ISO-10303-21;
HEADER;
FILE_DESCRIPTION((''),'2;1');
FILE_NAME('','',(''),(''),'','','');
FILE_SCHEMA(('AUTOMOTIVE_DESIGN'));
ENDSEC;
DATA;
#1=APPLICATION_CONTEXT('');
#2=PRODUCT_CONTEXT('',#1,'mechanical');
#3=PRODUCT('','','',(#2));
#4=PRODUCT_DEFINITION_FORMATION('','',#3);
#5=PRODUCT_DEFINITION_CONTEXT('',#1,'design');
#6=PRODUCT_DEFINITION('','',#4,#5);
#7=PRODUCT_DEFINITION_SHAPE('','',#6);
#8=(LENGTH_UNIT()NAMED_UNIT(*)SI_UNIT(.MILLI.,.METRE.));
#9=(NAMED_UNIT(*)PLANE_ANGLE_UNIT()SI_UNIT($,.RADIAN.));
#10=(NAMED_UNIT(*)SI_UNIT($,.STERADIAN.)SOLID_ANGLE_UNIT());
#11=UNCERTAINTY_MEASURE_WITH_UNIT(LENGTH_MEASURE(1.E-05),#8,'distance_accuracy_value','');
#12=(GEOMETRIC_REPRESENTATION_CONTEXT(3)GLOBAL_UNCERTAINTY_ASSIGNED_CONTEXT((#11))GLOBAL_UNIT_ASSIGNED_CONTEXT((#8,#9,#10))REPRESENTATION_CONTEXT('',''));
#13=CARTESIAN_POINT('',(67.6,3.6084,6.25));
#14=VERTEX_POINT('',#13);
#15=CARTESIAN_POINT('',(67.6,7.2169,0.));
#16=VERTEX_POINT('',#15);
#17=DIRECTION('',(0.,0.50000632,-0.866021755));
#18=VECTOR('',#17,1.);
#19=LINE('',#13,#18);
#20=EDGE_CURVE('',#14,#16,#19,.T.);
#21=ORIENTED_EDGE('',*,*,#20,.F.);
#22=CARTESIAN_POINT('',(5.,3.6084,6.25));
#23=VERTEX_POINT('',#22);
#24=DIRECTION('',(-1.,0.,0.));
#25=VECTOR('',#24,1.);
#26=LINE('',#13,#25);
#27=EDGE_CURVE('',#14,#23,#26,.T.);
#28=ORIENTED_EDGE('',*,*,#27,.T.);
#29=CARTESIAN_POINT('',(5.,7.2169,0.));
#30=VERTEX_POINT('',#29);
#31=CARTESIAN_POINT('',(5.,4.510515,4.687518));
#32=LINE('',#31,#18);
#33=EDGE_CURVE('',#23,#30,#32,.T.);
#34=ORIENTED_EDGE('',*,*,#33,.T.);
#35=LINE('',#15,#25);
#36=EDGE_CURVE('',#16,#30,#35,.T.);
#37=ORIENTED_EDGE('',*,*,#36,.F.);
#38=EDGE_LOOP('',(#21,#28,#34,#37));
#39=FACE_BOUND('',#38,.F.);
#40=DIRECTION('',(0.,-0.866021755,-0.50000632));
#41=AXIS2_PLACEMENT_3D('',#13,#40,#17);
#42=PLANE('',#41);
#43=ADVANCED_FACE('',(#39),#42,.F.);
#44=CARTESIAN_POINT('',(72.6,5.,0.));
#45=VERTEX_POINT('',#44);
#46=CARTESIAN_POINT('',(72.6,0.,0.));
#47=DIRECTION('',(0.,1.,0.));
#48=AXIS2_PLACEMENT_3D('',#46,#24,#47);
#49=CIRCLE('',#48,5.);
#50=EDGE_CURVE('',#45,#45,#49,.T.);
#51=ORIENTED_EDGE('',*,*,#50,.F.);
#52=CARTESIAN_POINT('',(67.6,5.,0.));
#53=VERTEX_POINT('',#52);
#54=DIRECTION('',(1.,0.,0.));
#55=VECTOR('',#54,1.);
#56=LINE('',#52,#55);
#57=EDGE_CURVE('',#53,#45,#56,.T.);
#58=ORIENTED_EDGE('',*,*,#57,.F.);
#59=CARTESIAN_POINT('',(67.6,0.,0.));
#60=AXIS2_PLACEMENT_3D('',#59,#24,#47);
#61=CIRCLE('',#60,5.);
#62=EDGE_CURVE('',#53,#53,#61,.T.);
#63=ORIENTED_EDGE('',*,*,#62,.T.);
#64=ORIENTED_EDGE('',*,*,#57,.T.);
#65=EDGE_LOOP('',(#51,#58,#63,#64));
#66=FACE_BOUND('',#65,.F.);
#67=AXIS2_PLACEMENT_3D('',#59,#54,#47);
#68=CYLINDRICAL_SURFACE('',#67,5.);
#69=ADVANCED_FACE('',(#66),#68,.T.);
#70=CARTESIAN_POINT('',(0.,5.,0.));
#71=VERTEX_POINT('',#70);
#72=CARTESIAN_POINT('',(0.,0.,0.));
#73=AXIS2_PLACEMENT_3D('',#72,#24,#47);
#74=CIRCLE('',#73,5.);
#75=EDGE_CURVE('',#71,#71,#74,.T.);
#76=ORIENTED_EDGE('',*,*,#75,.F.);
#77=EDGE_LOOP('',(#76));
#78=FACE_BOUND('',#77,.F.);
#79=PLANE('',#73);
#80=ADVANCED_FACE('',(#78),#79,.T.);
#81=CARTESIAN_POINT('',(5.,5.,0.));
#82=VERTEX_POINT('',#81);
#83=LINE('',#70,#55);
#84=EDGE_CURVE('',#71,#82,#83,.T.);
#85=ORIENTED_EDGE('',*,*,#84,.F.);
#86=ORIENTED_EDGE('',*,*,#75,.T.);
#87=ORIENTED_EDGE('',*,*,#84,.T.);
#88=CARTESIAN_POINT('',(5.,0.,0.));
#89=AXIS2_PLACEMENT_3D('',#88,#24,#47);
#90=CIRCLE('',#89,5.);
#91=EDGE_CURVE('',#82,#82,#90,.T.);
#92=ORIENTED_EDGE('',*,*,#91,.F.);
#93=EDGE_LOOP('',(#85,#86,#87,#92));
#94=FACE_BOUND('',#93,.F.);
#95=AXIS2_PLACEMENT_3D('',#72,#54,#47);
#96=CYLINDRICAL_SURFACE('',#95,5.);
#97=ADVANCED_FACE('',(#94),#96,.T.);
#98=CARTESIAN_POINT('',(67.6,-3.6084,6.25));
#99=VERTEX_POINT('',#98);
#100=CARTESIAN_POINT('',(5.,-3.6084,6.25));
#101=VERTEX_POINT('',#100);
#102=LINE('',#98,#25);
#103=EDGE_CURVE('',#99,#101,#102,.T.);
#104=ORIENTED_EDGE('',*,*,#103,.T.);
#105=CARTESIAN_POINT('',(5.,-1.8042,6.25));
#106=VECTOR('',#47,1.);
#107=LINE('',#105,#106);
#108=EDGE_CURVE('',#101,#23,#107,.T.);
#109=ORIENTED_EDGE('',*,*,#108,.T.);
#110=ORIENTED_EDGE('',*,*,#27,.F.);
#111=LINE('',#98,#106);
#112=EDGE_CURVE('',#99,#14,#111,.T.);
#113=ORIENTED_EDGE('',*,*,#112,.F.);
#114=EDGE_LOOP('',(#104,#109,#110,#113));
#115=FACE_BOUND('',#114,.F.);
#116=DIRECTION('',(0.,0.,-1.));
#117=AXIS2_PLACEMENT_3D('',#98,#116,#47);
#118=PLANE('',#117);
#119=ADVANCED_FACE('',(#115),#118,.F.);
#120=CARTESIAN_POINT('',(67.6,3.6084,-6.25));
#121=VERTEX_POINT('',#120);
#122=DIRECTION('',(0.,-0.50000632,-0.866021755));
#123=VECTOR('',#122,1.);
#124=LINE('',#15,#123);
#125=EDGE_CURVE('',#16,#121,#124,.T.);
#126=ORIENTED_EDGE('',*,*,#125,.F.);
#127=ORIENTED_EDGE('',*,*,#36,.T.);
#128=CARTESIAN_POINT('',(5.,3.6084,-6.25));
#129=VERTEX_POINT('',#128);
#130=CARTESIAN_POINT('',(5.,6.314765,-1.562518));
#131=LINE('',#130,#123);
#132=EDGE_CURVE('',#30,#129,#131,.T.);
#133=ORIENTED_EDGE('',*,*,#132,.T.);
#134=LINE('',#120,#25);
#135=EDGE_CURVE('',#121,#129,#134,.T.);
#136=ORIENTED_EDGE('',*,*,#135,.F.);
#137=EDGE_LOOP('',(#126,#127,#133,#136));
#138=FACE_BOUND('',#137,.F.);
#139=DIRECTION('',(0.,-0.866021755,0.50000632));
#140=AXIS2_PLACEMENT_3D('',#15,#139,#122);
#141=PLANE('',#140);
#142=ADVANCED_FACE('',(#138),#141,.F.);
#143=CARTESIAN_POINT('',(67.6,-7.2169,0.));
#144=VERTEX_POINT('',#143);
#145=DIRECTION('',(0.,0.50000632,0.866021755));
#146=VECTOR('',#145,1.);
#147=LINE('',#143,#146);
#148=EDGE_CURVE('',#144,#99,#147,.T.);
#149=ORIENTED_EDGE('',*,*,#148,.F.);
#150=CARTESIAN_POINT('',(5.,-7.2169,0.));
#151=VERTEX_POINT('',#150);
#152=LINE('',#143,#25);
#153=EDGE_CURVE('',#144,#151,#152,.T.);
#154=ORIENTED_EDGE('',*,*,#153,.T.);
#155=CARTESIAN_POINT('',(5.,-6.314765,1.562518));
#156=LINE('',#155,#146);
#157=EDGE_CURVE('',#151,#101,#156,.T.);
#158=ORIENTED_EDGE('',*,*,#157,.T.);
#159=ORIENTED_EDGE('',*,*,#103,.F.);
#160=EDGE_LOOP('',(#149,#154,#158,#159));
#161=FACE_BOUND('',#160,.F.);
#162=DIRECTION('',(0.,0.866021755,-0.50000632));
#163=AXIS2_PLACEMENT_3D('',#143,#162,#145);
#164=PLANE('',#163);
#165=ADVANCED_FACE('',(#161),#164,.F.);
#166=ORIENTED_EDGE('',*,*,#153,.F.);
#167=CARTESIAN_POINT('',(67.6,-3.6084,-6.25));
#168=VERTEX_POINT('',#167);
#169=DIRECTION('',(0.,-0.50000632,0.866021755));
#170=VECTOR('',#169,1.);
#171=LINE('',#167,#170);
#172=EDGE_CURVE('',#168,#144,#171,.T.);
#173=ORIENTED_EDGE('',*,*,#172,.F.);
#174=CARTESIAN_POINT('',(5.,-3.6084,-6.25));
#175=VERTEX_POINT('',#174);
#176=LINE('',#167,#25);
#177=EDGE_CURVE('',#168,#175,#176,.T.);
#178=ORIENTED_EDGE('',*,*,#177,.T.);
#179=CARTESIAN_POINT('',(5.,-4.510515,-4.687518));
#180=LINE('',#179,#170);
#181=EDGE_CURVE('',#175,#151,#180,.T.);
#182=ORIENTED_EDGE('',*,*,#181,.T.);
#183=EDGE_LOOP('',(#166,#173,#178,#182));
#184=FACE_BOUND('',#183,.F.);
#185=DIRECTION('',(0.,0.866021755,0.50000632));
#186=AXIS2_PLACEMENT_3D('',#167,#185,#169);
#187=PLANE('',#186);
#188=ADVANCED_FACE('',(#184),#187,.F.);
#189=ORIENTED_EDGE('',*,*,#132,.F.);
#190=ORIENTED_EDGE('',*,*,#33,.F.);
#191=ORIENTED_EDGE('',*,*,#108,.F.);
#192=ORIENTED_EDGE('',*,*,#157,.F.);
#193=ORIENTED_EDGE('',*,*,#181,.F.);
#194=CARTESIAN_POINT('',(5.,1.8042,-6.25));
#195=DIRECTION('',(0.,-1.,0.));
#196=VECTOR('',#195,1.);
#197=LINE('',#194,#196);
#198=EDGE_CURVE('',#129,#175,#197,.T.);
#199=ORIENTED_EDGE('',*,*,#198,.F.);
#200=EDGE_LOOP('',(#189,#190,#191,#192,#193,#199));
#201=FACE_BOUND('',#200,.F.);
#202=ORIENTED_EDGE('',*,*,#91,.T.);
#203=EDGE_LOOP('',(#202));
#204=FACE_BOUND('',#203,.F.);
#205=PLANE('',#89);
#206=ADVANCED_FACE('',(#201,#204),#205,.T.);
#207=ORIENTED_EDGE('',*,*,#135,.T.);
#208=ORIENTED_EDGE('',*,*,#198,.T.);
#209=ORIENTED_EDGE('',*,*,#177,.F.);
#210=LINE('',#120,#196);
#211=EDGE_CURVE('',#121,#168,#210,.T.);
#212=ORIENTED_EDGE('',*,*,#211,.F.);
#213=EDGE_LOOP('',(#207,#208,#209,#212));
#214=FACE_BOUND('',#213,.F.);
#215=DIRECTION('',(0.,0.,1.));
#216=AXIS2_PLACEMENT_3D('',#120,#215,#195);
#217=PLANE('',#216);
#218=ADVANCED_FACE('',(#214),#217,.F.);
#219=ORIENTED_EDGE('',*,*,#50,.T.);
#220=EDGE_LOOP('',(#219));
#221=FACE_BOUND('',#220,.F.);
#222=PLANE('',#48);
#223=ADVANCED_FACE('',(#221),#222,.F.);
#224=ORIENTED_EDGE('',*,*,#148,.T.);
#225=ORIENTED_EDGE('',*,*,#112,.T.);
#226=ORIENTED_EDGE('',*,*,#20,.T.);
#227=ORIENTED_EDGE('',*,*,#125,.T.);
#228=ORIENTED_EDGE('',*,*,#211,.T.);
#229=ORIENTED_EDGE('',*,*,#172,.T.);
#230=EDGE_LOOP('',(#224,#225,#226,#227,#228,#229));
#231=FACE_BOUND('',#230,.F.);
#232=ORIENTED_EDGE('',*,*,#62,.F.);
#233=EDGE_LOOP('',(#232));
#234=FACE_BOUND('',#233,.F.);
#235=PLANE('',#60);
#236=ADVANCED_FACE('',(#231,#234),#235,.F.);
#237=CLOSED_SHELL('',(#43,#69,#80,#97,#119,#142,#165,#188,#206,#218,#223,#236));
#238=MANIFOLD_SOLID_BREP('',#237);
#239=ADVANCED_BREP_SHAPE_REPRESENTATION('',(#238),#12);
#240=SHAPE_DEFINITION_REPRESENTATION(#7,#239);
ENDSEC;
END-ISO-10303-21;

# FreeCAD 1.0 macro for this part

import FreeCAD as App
import Part
import Sketcher
Q = App.Units.Quantity


def add_polygon(sketch, points):
    """Adds a closed chain of lines whose ends are joined by coincident constraints."""
    first, n = sketch.GeometryCount, len(points)
    for a, b in zip(points, points[1:] + points[:1]):
        sketch.addGeometry(Part.LineSegment(App.Vector(*a, 0), App.Vector(*b, 0)), False)
    for i in range(n):
        sketch.addConstraint(Sketcher.Constraint("Coincident", first + i, 2, first + (i + 1) % n, 1))

doc = App.newDocument("Part")
body = doc.addObject("PartDesign::Body", "Body")

sketch1 = body.newObject("Sketcher::SketchObject", "Sketch")
sketch1.AttachmentSupport = (doc.getObject("XY_Plane"), [""])
sketch1.MapMode = "FlatFace"
add_polygon(sketch1, [(0, 5), (0, 0), (73, 0), (73, 5), (68, 5), (68, 15), (5, 15), (5, 5)])
sketch1.addConstraint(Sketcher.Constraint("Vertical", 0))
sketch1.addConstraint(Sketcher.Constraint("Horizontal", 1))
sketch1.addConstraint(Sketcher.Constraint("Vertical", 2))
sketch1.addConstraint(Sketcher.Constraint("Horizontal", 3))
sketch1.addConstraint(Sketcher.Constraint("Vertical", 4))
sketch1.addConstraint(Sketcher.Constraint("Horizontal", 5))
sketch1.addConstraint(Sketcher.Constraint("Vertical", 6))
sketch1.addConstraint(Sketcher.Constraint("Horizontal", 7))
sketch1.addConstraint(Sketcher.Constraint("Coincident", 0, 2, -1, 1))
sketch1.addConstraint(Sketcher.Constraint("Horizontal", 3, 2, 6, 2))
sketch1.addConstraint(Sketcher.Constraint("Equal", 3, 7))
sketch1.addConstraint(Sketcher.Constraint("Equal", 7, 0))
sketch1.addConstraint(Sketcher.Constraint("DistanceX", 3, 2, 3, 1, 5.0))
sketch1.addConstraint(Sketcher.Constraint("DistanceX", 5, 2, 5, 1, 62.6))
sketch1.addConstraint(Sketcher.Constraint("DistanceY", -1, 1, 4, 2, 15.0))
revolution = body.newObject("PartDesign::Revolution", "Revolution")
revolution.Profile = sketch1
revolution.ReferenceAxis = (sketch1, ["H_Axis"])
revolution.Angle = 360

sketch2 = body.newObject("Sketcher::SketchObject", "Sketch001")
sketch2.AttachmentSupport = (doc.getObject("YZ_Plane"), [""])
sketch2.MapMode = "FlatFace"
sketch2.AttachmentOffset = App.Placement(App.Vector(0, 0, 67.6), App.Rotation())
sketch2.addGeometry(Part.Circle(App.Vector(0, 0, 0), App.Vector(0, 0, 1), 15), False)
add_polygon(sketch2, [(4, 6), (7, 0), (4, -6), (-4, -6), (-7, 0), (-4, 6)])
sketch2.addConstraint(Sketcher.Constraint("Horizontal", 3))
sketch2.addConstraint(Sketcher.Constraint("Horizontal", 6))
sketch2.addConstraint(Sketcher.Constraint("Coincident", 0, 3, -1, 1))
sketch2.addConstraint(Sketcher.Constraint("Symmetric", 1, 2, 4, 2, -1, 1))
sketch2.addConstraint(Sketcher.Constraint("Symmetric", 2, 2, 5, 2, -1, 1))
sketch2.addConstraint(Sketcher.Constraint("PointOnObject", 1, 2, -1))
sketch2.addConstraint(Sketcher.Constraint("Parallel", 1, 4))
sketch2.addConstraint(Sketcher.Constraint("Vertical", 3, 2, 5, 2))
sketch2.addConstraint(Sketcher.Constraint("Diameter", 0, 30.0))
sketch2.addConstraint(Sketcher.Constraint("DistanceY", 3, 2, 5, 2, 12.5))
sketch2.addConstraint(Sketcher.Constraint("Angle", 1, Q("-59.9996 deg")))
sketch2.addConstraint(Sketcher.Constraint("DistanceX", 3, 2, 3, 1, 7.2168))
pocket1 = body.newObject("PartDesign::Pocket", "Pocket")
pocket1.Profile = sketch2
pocket1.Type = "ThroughAll"

doc.recompute()
